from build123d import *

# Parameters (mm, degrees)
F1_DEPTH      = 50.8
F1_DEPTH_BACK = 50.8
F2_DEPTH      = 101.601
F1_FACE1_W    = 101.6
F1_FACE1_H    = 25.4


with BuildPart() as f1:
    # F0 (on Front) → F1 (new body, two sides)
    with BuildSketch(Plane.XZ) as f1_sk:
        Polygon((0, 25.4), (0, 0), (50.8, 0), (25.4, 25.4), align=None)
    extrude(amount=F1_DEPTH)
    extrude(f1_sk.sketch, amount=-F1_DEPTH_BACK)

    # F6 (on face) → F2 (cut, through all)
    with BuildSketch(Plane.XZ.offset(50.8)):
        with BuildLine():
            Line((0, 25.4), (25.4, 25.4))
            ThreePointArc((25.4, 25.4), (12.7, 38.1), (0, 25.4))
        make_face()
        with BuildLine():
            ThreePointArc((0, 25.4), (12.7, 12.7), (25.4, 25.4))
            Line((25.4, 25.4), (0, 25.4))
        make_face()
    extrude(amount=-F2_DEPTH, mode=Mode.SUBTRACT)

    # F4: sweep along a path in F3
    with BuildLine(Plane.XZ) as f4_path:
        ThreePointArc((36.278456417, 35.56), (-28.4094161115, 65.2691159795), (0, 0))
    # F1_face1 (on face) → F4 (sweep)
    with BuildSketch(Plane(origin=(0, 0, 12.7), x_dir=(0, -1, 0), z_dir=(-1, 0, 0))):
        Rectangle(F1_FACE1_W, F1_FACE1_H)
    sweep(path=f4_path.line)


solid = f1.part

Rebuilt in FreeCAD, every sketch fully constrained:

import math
import FreeCAD as App
import Part
import Sketcher
Q = App.Units.Quantity


def add_polygon(sketch, points):
    """Adds a closed chain of lines whose ends are joined by coincident constraints."""
    first, n = sketch.GeometryCount, len(points)
    for a, b in zip(points, points[1:] + points[:1]):
        sketch.addGeometry(Part.LineSegment(App.Vector(*a, 0), App.Vector(*b, 0)), False)
    for i in range(n):
        sketch.addConstraint(Sketcher.Constraint("Coincident", first + i, 2, first + (i + 1) % n, 1))

doc = App.newDocument("Part")
body = doc.addObject("PartDesign::Body", "Body")

# Sketch on XZ plane
sketch1 = body.newObject("Sketcher::SketchObject", "Sketch")
sketch1.AttachmentSupport = (doc.getObject("XZ_Plane"), [""])
sketch1.MapMode = "FlatFace"
add_polygon(sketch1, [(0, 25.4), (0, 0), (50.8, 0), (25.4, 25.4)])  # lines 0-3
sketch1.addConstraint([
    Sketcher.Constraint("Vertical", 0),
    Sketcher.Constraint("Horizontal", 1),
    Sketcher.Constraint("Horizontal", 3),
    Sketcher.Constraint("Coincident", 0, 2, -1, 1),
    Sketcher.Constraint("Equal", 3, 0),
    Sketcher.Constraint("DistanceX", 1, 1, 1, 2, Q("2 in")),
    Sketcher.Constraint("DistanceX", 3, 2, 3, 1, Q("1 in")),
])
pad1 = body.newObject("PartDesign::Pad", "Pad")
pad1.Profile = sketch1
pad1.Type = "TwoLengths"
pad1.Length = Q("2 in")
pad1.Length2 = Q("2 in")

# Sketch on XZ plane
sketch2 = body.newObject("Sketcher::SketchObject", "Sketch001")
sketch2.AttachmentSupport = (doc.getObject("XZ_Plane"), [""])
sketch2.MapMode = "FlatFace"
sketch2.AttachmentOffset = App.Placement(App.Vector(0, 0, 2 * 25.4), App.Rotation())
sketch2.addGeometry(Part.Circle(App.Vector(12.7, 25.4, 0), App.Vector(0, 0, 1), 12.7), False)
sketch2.addConstraint([
    Sketcher.Constraint("Diameter", 0, Q("1 in")),
    Sketcher.Constraint("DistanceY", -1, 1, 0, 3, Q("1 in")),
    Sketcher.Constraint("DistanceX", -1, 1, 0, 3, Q("0.5 in")),
])
pocket1 = body.newObject("PartDesign::Pocket", "Pocket")
pocket1.Profile = sketch2
pocket1.Type = "ThroughAll"

# Sketch on YZ plane
sketch3 = body.newObject("Sketcher::SketchObject", "Sketch002")
sketch3.AttachmentSupport = (doc.getObject("YZ_Plane"), [""])
sketch3.MapMode = "FlatFace"
add_polygon(sketch3, [(50.8, 25.4), (50.8, 0), (-50.8, 0), (-50.8, 25.4)])  # lines 0-3
sketch3.addConstraint([
    Sketcher.Constraint("Vertical", 0),
    Sketcher.Constraint("Horizontal", 1),
    Sketcher.Constraint("Vertical", 2),
    Sketcher.Constraint("Horizontal", 3),
    Sketcher.Constraint("Symmetric", 0, 2, 1, 2, -1, 1),
    Sketcher.Constraint("DistanceX", 1, 2, 1, 1, Q("4 in")),
    Sketcher.Constraint("DistanceY", 0, 2, 0, 1, Q("1 in")),
])

# Sketch on XZ plane
sketch4 = body.newObject("Sketcher::SketchObject", "Sketch003")
sketch4.AttachmentSupport = (doc.getObject("XZ_Plane"), [""])
sketch4.MapMode = "FlatFace"
sketch4.addGeometry(Part.ArcOfCircle(Part.Circle(App.Vector(-1.739416, 38.060274, 0), App.Vector(0, 0, 1), 38.1), math.radians(-3.762681), math.radians(272.616689)), False)
sketch4.addConstraint([
    Sketcher.Constraint("Coincident", 0, 2, -1, 1),
    Sketcher.Constraint("Radius", 0, Q("1.5 in")),
    Sketcher.Constraint("DistanceY", -1, 1, 0, 1, Q("1.4 in")),
    Sketcher.Constraint("DistanceX", 0, 3, -1, 1, 1.739416),
])
doc.recompute()

additivepipe = body.newObject("PartDesign::AdditivePipe", "AdditivePipe")
additivepipe.Profile = sketch3
additivepipe.Spine = (sketch4, ["Edge1"])

doc.recompute()
